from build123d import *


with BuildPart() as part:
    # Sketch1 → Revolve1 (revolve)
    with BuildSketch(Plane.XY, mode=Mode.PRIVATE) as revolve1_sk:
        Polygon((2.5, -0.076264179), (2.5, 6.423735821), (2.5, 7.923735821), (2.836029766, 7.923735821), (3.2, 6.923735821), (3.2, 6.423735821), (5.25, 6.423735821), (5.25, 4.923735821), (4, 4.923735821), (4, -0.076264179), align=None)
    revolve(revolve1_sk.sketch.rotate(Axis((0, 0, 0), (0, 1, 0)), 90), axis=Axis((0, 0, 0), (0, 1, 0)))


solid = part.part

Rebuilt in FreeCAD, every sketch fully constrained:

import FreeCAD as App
import Part
import Sketcher

V = App.Vector
Q = App.Units.Quantity


def add_polygon(sketch, points):
    """Adds a closed chain of lines whose ends are joined by coincident constraints."""
    first, n = sketch.GeometryCount, len(points)
    for a, b in zip(points, points[1:] + points[:1]):
        sketch.addGeometry(Part.LineSegment(App.Vector(*a, 0), App.Vector(*b, 0)), False)
    for i in range(n):
        sketch.addConstraint(Sketcher.Constraint("Coincident", first + i, 2, first + (i + 1) % n, 1))

doc = App.newDocument("Part")
body = doc.addObject("PartDesign::Body", "Body")

# Sketch on XY plane
sketch1 = body.newObject("Sketcher::SketchObject", "Sketch")
sketch1.AttachmentSupport = (doc.getObject("XY_Plane"), [""])
sketch1.MapMode = "FlatFace"
add_polygon(sketch1, [(2.5, 7.92), (2.5, -0.08), (4, -0.08), (4, 4.92), (5.25, 4.92), (5.25, 6.42), (3.2, 6.42), (3.2, 6.92), (2.84, 7.92)])  # lines 0-8
sketch1.addConstraint(Sketcher.Constraint("Vertical", 0))
sketch1.addConstraint(Sketcher.Constraint("Horizontal", 1))
sketch1.addConstraint(Sketcher.Constraint("Vertical", 2))
sketch1.addConstraint(Sketcher.Constraint("Horizontal", 3))
sketch1.addConstraint(Sketcher.Constraint("Vertical", 4))
sketch1.addConstraint(Sketcher.Constraint("Horizontal", 5))
sketch1.addConstraint(Sketcher.Constraint("Vertical", 6))
sketch1.addConstraint(Sketcher.Constraint("Horizontal", 8))
sketch1.addConstraint(Sketcher.Constraint("Equal", 1, 4))
sketch1.addConstraint(Sketcher.Constraint("DistanceY", 0, 2, 0, 1, 8.0))
sketch1.addConstraint(Sketcher.Constraint("DistanceY", 2, 1, 2, 2, 5.0))
sketch1.addConstraint(Sketcher.Constraint("Angle", 7, Q("110 deg")))
sketch1.addConstraint(Sketcher.Constraint("DistanceX", 1, 1, 1, 2, 1.5))
sketch1.addConstraint(Sketcher.Constraint("DistanceY", 6, 1, 6, 2, 0.5))
sketch1.addConstraint(Sketcher.Constraint("DistanceX", -1, 1, 1, 2, 4.0))
sketch1.addConstraint(Sketcher.Constraint("DistanceX", 3, 1, 3, 2, 1.25))
sketch1.addConstraint(Sketcher.Constraint("DistanceX", 5, 2, 5, 1, 2.05))
sketch1.addConstraint(Sketcher.Constraint("DistanceY", 0, 2, -1, 1, 0.076264))
revolution = body.newObject("PartDesign::Revolution", "Revolution")
revolution.Profile = sketch1
revolution.ReferenceAxis = (sketch1, ["V_Axis"])
revolution.Angle = 360

doc.recompute()
